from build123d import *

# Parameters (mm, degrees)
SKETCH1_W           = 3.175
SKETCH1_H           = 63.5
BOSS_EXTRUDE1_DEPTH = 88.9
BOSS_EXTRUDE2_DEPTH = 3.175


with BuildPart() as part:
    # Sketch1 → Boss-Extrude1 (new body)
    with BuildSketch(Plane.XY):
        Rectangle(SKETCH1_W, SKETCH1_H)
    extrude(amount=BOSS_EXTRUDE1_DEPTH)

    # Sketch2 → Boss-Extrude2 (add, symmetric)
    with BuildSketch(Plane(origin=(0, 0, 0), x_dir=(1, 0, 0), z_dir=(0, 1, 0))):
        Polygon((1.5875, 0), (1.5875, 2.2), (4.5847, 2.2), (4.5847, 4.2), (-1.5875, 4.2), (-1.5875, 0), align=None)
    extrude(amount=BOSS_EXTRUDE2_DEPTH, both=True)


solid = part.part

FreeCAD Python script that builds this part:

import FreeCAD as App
import Part
import Sketcher

V = App.Vector
Q = App.Units.Quantity


def add_polygon(sketch, points):
    """Adds a closed chain of lines whose ends are joined by coincident constraints."""
    first, n = sketch.GeometryCount, len(points)
    for a, b in zip(points, points[1:] + points[:1]):
        sketch.addGeometry(Part.LineSegment(App.Vector(*a, 0), App.Vector(*b, 0)), False)
    for i in range(n):
        sketch.addConstraint(Sketcher.Constraint("Coincident", first + i, 2, first + (i + 1) % n, 1))

doc = App.newDocument("Part")
body = doc.addObject("PartDesign::Body", "Body")

# Sketch on XY plane
sketch1 = body.newObject("Sketcher::SketchObject", "Sketch")
sketch1.AttachmentSupport = (doc.getObject("XY_Plane"), [""])
sketch1.MapMode = "FlatFace"
add_polygon(sketch1, [(-1.6, 31.8), (-1.6, -31.8), (1.6, -31.8), (1.6, 31.8)])  # lines 0-3
sketch1.addConstraint(Sketcher.Constraint("Vertical", 0))
sketch1.addConstraint(Sketcher.Constraint("Horizontal", 1))
sketch1.addConstraint(Sketcher.Constraint("Vertical", 2))
sketch1.addConstraint(Sketcher.Constraint("Horizontal", 3))
sketch1.addConstraint(Sketcher.Constraint("Symmetric", 0, 2, 2, 2, -1, 1))
sketch1.addConstraint(Sketcher.Constraint("DistanceY", 0, 2, 0, 1, Q("2.5 in")))
sketch1.addConstraint(Sketcher.Constraint("DistanceX", 1, 1, 1, 2, Q("0.125 in")))
pad1 = body.newObject("PartDesign::Pad", "Pad")
pad1.Profile = sketch1
pad1.Length = Q("3.5 in")

# Sketch on XZ plane
sketch2 = body.newObject("Sketcher::SketchObject", "Sketch001")
sketch2.AttachmentSupport = (doc.getObject("XZ_Plane"), [""])
sketch2.MapMode = "FlatFace"
add_polygon(sketch2, [(1.6, 0), (1.6, -2.2), (4.6, -2.2), (4.6, -4.2), (-1.6, -4.2), (-1.6, 0)])  # lines 0-5
sketch2.addConstraint(Sketcher.Constraint("Vertical", 0))
sketch2.addConstraint(Sketcher.Constraint("Horizontal", 1))
sketch2.addConstraint(Sketcher.Constraint("Vertical", 2))
sketch2.addConstraint(Sketcher.Constraint("Horizontal", 3))
sketch2.addConstraint(Sketcher.Constraint("Vertical", 4))
sketch2.addConstraint(Sketcher.Constraint("Horizontal", 5))
sketch2.addConstraint(Sketcher.Constraint("Symmetric", 4, 2, 5, 2, -1, 1))
sketch2.addConstraint(Sketcher.Constraint("DistanceX", 1, 1, 1, 2, Q("0.118 in")))
sketch2.addConstraint(Sketcher.Constraint("DistanceX", 3, 2, 3, 1, Q("0.243 in")))
sketch2.addConstraint(Sketcher.Constraint("DistanceY", 0, 2, 0, 1, 2.2))
sketch2.addConstraint(Sketcher.Constraint("DistanceY", 2, 2, 2, 1, 2.0))
pad2 = body.newObject("PartDesign::Pad", "Pad001")
pad2.Profile = sketch2
pad2.Length = Q("0.25 in")
pad2.Midplane = True

doc.recompute()
